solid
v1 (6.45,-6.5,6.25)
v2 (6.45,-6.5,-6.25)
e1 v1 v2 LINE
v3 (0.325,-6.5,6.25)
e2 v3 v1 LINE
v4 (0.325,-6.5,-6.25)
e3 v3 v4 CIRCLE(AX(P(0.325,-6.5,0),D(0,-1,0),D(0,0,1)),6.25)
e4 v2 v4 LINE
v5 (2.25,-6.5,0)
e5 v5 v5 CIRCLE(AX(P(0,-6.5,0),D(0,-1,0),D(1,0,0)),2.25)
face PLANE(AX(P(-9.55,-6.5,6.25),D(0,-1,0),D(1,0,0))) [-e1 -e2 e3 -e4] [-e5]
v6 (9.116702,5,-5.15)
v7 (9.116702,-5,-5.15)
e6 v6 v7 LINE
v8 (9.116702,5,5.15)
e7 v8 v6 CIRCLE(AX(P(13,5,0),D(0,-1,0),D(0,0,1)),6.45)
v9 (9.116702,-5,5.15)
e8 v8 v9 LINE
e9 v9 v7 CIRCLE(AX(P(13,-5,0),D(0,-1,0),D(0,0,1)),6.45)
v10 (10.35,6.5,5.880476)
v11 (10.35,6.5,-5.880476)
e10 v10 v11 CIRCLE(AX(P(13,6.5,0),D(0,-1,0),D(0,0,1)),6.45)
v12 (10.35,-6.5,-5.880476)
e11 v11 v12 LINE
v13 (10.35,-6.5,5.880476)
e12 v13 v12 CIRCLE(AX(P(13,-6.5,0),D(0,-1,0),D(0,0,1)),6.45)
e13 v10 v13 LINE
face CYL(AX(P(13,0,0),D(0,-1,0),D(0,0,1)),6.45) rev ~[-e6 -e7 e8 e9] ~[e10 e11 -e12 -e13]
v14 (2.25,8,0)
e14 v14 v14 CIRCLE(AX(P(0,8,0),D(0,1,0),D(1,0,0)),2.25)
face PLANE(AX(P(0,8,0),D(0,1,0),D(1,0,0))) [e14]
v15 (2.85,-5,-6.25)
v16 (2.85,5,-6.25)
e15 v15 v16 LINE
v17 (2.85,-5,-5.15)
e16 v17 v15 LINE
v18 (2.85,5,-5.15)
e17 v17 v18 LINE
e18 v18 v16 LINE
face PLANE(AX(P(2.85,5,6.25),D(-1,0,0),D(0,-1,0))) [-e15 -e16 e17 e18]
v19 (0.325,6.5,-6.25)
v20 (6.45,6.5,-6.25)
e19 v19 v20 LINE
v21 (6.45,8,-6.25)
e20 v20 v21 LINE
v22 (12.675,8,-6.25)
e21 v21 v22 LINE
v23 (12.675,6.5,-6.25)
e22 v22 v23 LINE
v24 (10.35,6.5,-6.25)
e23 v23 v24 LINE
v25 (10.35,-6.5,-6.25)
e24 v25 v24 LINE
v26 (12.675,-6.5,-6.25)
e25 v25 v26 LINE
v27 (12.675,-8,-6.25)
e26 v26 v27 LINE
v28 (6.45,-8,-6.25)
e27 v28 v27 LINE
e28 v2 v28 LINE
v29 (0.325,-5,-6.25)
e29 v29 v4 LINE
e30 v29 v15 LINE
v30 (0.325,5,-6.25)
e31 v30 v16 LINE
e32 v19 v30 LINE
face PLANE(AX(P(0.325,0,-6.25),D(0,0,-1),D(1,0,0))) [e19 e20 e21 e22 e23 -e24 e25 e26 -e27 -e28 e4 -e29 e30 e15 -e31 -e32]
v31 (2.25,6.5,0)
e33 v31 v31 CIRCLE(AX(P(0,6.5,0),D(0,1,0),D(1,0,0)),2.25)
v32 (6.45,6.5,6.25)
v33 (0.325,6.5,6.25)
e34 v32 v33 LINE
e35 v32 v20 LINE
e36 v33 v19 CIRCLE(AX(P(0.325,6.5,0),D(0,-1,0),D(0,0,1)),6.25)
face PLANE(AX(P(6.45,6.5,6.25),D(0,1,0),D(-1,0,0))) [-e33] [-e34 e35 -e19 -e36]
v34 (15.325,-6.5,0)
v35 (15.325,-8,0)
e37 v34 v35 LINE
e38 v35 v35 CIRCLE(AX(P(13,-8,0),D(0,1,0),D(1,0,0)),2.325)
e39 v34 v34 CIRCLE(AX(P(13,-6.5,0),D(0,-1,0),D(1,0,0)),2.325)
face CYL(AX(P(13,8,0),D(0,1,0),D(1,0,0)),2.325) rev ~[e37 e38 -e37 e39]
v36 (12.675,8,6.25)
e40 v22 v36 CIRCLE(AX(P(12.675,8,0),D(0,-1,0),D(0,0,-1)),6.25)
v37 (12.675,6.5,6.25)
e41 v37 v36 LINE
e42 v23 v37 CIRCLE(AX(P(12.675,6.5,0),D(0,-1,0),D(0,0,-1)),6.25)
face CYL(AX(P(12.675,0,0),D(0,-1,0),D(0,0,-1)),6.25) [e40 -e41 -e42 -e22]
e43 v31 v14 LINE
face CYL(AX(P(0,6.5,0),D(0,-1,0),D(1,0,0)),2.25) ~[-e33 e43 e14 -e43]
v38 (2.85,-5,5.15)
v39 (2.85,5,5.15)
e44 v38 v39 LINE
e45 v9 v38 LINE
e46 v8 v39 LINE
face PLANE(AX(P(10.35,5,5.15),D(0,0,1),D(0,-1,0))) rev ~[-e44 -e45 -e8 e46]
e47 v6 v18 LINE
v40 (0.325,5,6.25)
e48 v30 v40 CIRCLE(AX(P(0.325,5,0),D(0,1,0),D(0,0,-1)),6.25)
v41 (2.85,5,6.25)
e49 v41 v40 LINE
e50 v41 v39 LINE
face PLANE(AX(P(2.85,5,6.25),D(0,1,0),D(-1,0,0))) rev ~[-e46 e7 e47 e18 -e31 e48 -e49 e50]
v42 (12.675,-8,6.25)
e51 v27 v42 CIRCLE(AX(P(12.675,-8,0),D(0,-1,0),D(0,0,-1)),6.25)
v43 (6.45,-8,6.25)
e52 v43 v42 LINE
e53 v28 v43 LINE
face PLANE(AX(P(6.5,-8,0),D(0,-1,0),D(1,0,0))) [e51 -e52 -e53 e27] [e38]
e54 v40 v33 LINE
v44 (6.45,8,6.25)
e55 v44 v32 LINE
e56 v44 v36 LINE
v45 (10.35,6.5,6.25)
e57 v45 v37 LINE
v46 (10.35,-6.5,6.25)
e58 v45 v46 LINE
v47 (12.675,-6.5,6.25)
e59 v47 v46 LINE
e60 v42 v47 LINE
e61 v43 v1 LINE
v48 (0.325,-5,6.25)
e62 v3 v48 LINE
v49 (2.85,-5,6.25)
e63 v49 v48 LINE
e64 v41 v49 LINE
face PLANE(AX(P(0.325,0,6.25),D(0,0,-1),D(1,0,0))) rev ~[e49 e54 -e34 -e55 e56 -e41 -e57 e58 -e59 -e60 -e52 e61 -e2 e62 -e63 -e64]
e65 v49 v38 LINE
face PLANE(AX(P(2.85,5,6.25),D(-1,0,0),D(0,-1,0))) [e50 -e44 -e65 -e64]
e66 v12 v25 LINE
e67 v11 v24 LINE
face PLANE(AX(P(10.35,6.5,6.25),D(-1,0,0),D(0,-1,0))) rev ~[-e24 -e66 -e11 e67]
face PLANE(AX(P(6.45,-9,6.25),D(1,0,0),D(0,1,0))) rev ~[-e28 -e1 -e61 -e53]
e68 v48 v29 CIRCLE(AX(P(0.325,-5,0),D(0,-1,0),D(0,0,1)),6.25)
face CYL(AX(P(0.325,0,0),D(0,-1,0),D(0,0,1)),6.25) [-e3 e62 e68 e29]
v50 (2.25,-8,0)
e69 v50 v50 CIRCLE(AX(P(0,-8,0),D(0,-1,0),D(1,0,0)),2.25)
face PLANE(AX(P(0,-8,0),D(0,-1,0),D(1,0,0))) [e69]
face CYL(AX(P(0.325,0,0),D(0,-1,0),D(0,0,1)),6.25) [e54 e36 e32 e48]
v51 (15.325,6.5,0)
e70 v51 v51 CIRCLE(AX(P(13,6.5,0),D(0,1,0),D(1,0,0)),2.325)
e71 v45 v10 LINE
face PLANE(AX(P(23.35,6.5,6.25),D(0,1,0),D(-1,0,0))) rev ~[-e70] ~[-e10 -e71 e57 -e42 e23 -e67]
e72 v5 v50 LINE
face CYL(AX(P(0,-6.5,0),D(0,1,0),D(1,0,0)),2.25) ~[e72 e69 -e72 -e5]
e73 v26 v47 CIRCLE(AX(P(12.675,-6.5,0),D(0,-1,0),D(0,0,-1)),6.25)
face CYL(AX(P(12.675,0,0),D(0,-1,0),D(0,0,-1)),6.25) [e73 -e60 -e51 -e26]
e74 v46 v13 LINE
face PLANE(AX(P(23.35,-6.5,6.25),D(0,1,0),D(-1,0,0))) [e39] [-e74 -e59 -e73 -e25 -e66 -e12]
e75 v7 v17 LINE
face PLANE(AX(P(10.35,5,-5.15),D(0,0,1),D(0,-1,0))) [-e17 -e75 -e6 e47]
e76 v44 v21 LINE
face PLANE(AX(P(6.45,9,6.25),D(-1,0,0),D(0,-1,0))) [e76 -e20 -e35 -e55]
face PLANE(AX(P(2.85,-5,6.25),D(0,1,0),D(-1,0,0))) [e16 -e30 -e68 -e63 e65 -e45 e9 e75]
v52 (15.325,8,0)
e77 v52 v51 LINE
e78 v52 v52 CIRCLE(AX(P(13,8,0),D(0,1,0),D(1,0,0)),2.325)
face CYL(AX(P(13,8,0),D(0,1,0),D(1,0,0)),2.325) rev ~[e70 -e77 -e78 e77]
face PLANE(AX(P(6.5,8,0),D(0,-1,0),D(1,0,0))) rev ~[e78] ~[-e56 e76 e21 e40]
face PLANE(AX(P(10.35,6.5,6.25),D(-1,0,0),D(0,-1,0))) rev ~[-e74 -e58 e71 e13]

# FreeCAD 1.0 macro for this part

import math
import FreeCAD as App
import Part
import Sketcher

V = App.Vector

doc = App.newDocument("Part")
params = doc.addObject("Spreadsheet::Sheet", "Params")
for row, (alias, value) in enumerate([
    ("sketch1_radius", "6.45 mm"),
    ("pad1_length", "13 mm"),
    ("sketch2_radius", "6.25 mm"),
    ("sketch2_width", "12.35 mm"),
    ("pad2_length", "16 mm"),
    ("sketch3_width", "16 mm"),
    ("sketch3_height", "2.5 mm"),
    ("sketch4_width", "10 mm"),
    ("sketch5_width", "13 mm"),
    ("sketch6_diameter", "4.5 mm"),
    ("pad3_length", "1.5 mm"),
    ("sketch7_diameter", "4.5 mm"),
    ("pad4_length", "1.5 mm"),
    ("sketch8_diameter", "4.65 mm"),
    ("sketch9_width", "10 mm"),
    ("sketch9_height", "10.3 mm"),
], start=1):
    params.set(f"A{row}", alias)
    params.set(f"B{row}", "=" + value)
    params.setAlias(f"B{row}", alias)

body = doc.addObject("PartDesign::Body", "Body")

# Sketch on XZ plane
sketch1 = doc.addObject("Sketcher::SketchObject", "Sketch")
body.addObject(sketch1)
sketch1.AttachmentSupport = (doc.XZ_Plane, [""])
sketch1.MapMode = "FlatFace"
sketch1.addGeometry(Part.ArcOfCircle(Part.Circle(V(13, 0, 0), V(0, 0, 1), 6.45), math.radians(90), math.radians(270)), False)
sketch1.addGeometry(Part.LineSegment(V(13, -6.45, 0), V(13, 6.45, 0)), False)
sketch1.addConstraint(Sketcher.Constraint("Coincident", 0, 1, 1, 2))
sketch1.addConstraint(Sketcher.Constraint("Coincident", 1, 1, 0, 2))
sketch1.addConstraint(Sketcher.Constraint("Vertical", 1))
sketch1.addConstraint(Sketcher.Constraint("PointOnObject", 0, 3, -1))
sketch1.addConstraint(Sketcher.Constraint("Radius", 0, 6.45))
sketch1.addConstraint(Sketcher.Constraint("DistanceX", -1, 1, 0, 3, 13.0))
sketch1.addConstraint(Sketcher.Constraint("DistanceX", -1, 1, 0, 1, 13.0))
sketch1.setExpression("Constraints[4]", "Params.sketch1_radius")
pad1 = doc.addObject("PartDesign::Pad", "Pad")
body.addObject(pad1)
pad1.Profile = sketch1
pad1.setExpression("Length", "Params.pad1_length")
pad1.Midplane = True
body2 = doc.addObject("PartDesign::Body", "Body001")

# Sketch on XZ plane
sketch2 = doc.addObject("Sketcher::SketchObject", "Sketch001")
body2.addObject(sketch2)
sketch2.AttachmentSupport = (doc.getObject("XZ_Plane001"), [""])
sketch2.MapMode = "FlatFace"
sketch2.addGeometry(Part.ArcOfCircle(Part.Circle(V(0.325, 0, 0), V(0, 0, 1), 6.25), math.radians(90), math.radians(270)), False)
sketch2.addGeometry(Part.LineSegment(V(0.325, -6.25, 0), V(12.675, -6.25, 0)), False)
sketch2.addGeometry(Part.ArcOfCircle(Part.Circle(V(12.675, 0, 0), V(0, 0, 1), 6.25), math.radians(-90), math.radians(90)), False)
sketch2.addGeometry(Part.LineSegment(V(12.675, 6.25, 0), V(0.325, 6.25, 0)), False)
sketch2.addConstraint(Sketcher.Constraint("Tangent", 0, 2, 1, 1))
sketch2.addConstraint(Sketcher.Constraint("Tangent", 1, 2, 2, 1))
sketch2.addConstraint(Sketcher.Constraint("Tangent", 2, 2, 3, 1))
sketch2.addConstraint(Sketcher.Constraint("Tangent", 3, 2, 0, 1))
sketch2.addConstraint(Sketcher.Constraint("Horizontal", 1))
sketch2.addConstraint(Sketcher.Constraint("Horizontal", 3))
sketch2.addConstraint(Sketcher.Constraint("PointOnObject", 0, 3, -1))
sketch2.addConstraint(Sketcher.Constraint("Radius", 0, 6.25))
sketch2.addConstraint(Sketcher.Constraint("DistanceX", 1, 1, 1, 2, 12.35))
sketch2.addConstraint(Sketcher.Constraint("DistanceX", -1, 1, 0, 3, 0.325))
sketch2.setExpression("Constraints[7]", "Params.sketch2_radius")
sketch2.setExpression("Constraints[8]", "Params.sketch2_width")
pad2 = doc.addObject("PartDesign::Pad", "Pad001")
body2.addObject(pad2)
pad2.Profile = sketch2
pad2.setExpression("Length", "Params.pad2_length")
pad2.Midplane = True

# Sketch on XY plane
sketch3 = doc.addObject("Sketcher::SketchObject", "Sketch002")
body2.addObject(sketch3)
sketch3.AttachmentSupport = (doc.getObject("XY_Plane001"), [""])
sketch3.MapMode = "FlatFace"
sketch3.AttachmentOffset = App.Placement(V(0, 0, 6.25), App.Rotation())
sketch3.addGeometry(Part.LineSegment(V(-9.55, -6.5, 0), V(-9.55, -9, 0)), False)
sketch3.addGeometry(Part.LineSegment(V(-9.55, -9, 0), V(6.45, -9, 0)), False)
sketch3.addGeometry(Part.LineSegment(V(6.45, -9, 0), V(6.45, -6.5, 0)), False)
sketch3.addGeometry(Part.LineSegment(V(6.45, -6.5, 0), V(-9.55, -6.5, 0)), False)
sketch3.addGeometry(Part.LineSegment(V(6.45, 6.5, 0), V(6.45, 9, 0)), False)
sketch3.addGeometry(Part.LineSegment(V(6.45, 9, 0), V(-9.55, 9, 0)), False)
sketch3.addGeometry(Part.LineSegment(V(-9.55, 9, 0), V(-9.55, 6.5, 0)), False)
sketch3.addGeometry(Part.LineSegment(V(-9.55, 6.5, 0), V(6.45, 6.5, 0)), False)
sketch3.addConstraint(Sketcher.Constraint("Coincident", 0, 2, 1, 1))
sketch3.addConstraint(Sketcher.Constraint("Coincident", 1, 2, 2, 1))
sketch3.addConstraint(Sketcher.Constraint("Coincident", 2, 2, 3, 1))
sketch3.addConstraint(Sketcher.Constraint("Coincident", 3, 2, 0, 1))
sketch3.addConstraint(Sketcher.Constraint("Coincident", 4, 2, 5, 1))
sketch3.addConstraint(Sketcher.Constraint("Coincident", 5, 2, 6, 1))
sketch3.addConstraint(Sketcher.Constraint("Coincident", 6, 2, 7, 1))
sketch3.addConstraint(Sketcher.Constraint("Coincident", 7, 2, 4, 1))
sketch3.addConstraint(Sketcher.Constraint("Vertical", 0))
sketch3.addConstraint(Sketcher.Constraint("Horizontal", 1))
sketch3.addConstraint(Sketcher.Constraint("Vertical", 2))
sketch3.addConstraint(Sketcher.Constraint("Horizontal", 3))
sketch3.addConstraint(Sketcher.Constraint("Vertical", 4))
sketch3.addConstraint(Sketcher.Constraint("Horizontal", 5))
sketch3.addConstraint(Sketcher.Constraint("Vertical", 6))
sketch3.addConstraint(Sketcher.Constraint("Horizontal", 7))
sketch3.addConstraint(Sketcher.Constraint("Symmetric", 1, 2, 4, 2, -1))
sketch3.addConstraint(Sketcher.Constraint("Symmetric", 3, 2, 6, 2, -1))
sketch3.addConstraint(Sketcher.Constraint("DistanceX", 1, 1, 1, 2, 16.0))
sketch3.addConstraint(Sketcher.Constraint("DistanceY", 0, 2, 0, 1, 2.5))
sketch3.addConstraint(Sketcher.Constraint("DistanceY", 0, 2, -1, 1, 9.0))
sketch3.addConstraint(Sketcher.Constraint("DistanceX", 0, 2, -1, 1, 9.55))
sketch3.setExpression("Constraints[18]", "Params.sketch3_width")
sketch3.setExpression("Constraints[19]", "Params.sketch3_height")
pocket1 = doc.addObject("PartDesign::Pocket", "Pocket")
body2.addObject(pocket1)
pocket1.Profile = sketch3
pocket1.Type = "ThroughAll"

# Sketch on XY plane
sketch4 = doc.addObject("Sketcher::SketchObject", "Sketch003")
body2.addObject(sketch4)
sketch4.AttachmentSupport = (doc.getObject("XY_Plane001"), [""])
sketch4.MapMode = "FlatFace"
sketch4.AttachmentOffset = App.Placement(V(0, 0, 6.25), App.Rotation())
sketch4.addGeometry(Part.LineSegment(V(2.85, -5, 0), V(2.85, 5, 0)), False)
sketch4.addGeometry(Part.LineSegment(V(2.85, 5, 0), V(-7.15, 5, 0)), False)
sketch4.addGeometry(Part.LineSegment(V(-7.15, 5, 0), V(-7.15, -5, 0)), False)
sketch4.addGeometry(Part.LineSegment(V(-7.15, -5, 0), V(2.85, -5, 0)), False)
sketch4.addConstraint(Sketcher.Constraint("Coincident", 0, 2, 1, 1))
sketch4.addConstraint(Sketcher.Constraint("Coincident", 1, 2, 2, 1))
sketch4.addConstraint(Sketcher.Constraint("Coincident", 2, 2, 3, 1))
sketch4.addConstraint(Sketcher.Constraint("Coincident", 3, 2, 0, 1))
sketch4.addConstraint(Sketcher.Constraint("Vertical", 0))
sketch4.addConstraint(Sketcher.Constraint("Horizontal", 1))
sketch4.addConstraint(Sketcher.Constraint("Vertical", 2))
sketch4.addConstraint(Sketcher.Constraint("Horizontal", 3))
sketch4.addConstraint(Sketcher.Constraint("Equal", 3, 0))
sketch4.addConstraint(Sketcher.Constraint("DistanceX", 1, 2, 1, 1, 10.0))
sketch4.addConstraint(Sketcher.Constraint("DistanceY", -1, 1, 0, 2, 5.0))
sketch4.addConstraint(Sketcher.Constraint("DistanceX", -1, 1, 0, 2, 2.85))
sketch4.setExpression("Constraints[9]", "Params.sketch4_width")
pocket2 = doc.addObject("PartDesign::Pocket", "Pocket001")
body2.addObject(pocket2)
pocket2.Profile = sketch4
pocket2.Type = "ThroughAll"

# Sketch on XY plane
sketch5 = doc.addObject("Sketcher::SketchObject", "Sketch004")
body2.addObject(sketch5)
sketch5.AttachmentSupport = (doc.getObject("XY_Plane001"), [""])
sketch5.MapMode = "FlatFace"
sketch5.AttachmentOffset = App.Placement(V(0, 0, 6.25), App.Rotation())
sketch5.addGeometry(Part.LineSegment(V(23.35, -6.5, 0), V(23.35, 6.5, 0)), False)
sketch5.addGeometry(Part.LineSegment(V(23.35, 6.5, 0), V(10.35, 6.5, 0)), False)
sketch5.addGeometry(Part.LineSegment(V(10.35, 6.5, 0), V(10.35, -6.5, 0)), False)
sketch5.addGeometry(Part.LineSegment(V(10.35, -6.5, 0), V(23.35, -6.5, 0)), False)
sketch5.addConstraint(Sketcher.Constraint("Coincident", 0, 2, 1, 1))
sketch5.addConstraint(Sketcher.Constraint("Coincident", 1, 2, 2, 1))
sketch5.addConstraint(Sketcher.Constraint("Coincident", 2, 2, 3, 1))
sketch5.addConstraint(Sketcher.Constraint("Coincident", 3, 2, 0, 1))
sketch5.addConstraint(Sketcher.Constraint("Vertical", 0))
sketch5.addConstraint(Sketcher.Constraint("Horizontal", 1))
sketch5.addConstraint(Sketcher.Constraint("Vertical", 2))
sketch5.addConstraint(Sketcher.Constraint("Horizontal", 3))
sketch5.addConstraint(Sketcher.Constraint("Equal", 3, 0))
sketch5.addConstraint(Sketcher.Constraint("DistanceX", 1, 2, 1, 1, 13.0))
sketch5.addConstraint(Sketcher.Constraint("DistanceY", -1, 1, 0, 2, 6.5))
sketch5.addConstraint(Sketcher.Constraint("DistanceX", -1, 1, 0, 2, 23.35))
sketch5.setExpression("Constraints[9]", "Params.sketch5_width")
pocket3 = doc.addObject("PartDesign::Pocket", "Pocket002")
body2.addObject(pocket3)
pocket3.Profile = sketch5
pocket3.Type = "ThroughAll"

# Sketch on XZ plane
sketch6 = doc.addObject("Sketcher::SketchObject", "Sketch005")
body2.addObject(sketch6)
sketch6.AttachmentSupport = (doc.getObject("XZ_Plane001"), [""])
sketch6.MapMode = "FlatFace"
sketch6.AttachmentOffset = App.Placement(V(0, 0, 6.5), App.Rotation())
sketch6.addGeometry(Part.Circle(V(0, 0, 0), V(0, 0, 1), 2.25), False)
sketch6.addConstraint(Sketcher.Constraint("Coincident", 0, 3, -1, 1))
sketch6.addConstraint(Sketcher.Constraint("Diameter", 0, 4.5))
sketch6.setExpression("Constraints[1]", "Params.sketch6_diameter")
pad3 = doc.addObject("PartDesign::Pad", "Pad002")
body2.addObject(pad3)
pad3.Profile = sketch6
pad3.setExpression("Length", "Params.pad3_length")

# Sketch on XZ plane
sketch7 = doc.addObject("Sketcher::SketchObject", "Sketch006")
body2.addObject(sketch7)
sketch7.AttachmentSupport = (doc.getObject("XZ_Plane001"), [""])
sketch7.MapMode = "FlatFace"
sketch7.AttachmentOffset = App.Placement(V(0, 0, -6.5), App.Rotation())
sketch7.addGeometry(Part.Circle(V(0, 0, 0), V(0, 0, 1), 2.25), False)
sketch7.addConstraint(Sketcher.Constraint("Coincident", 0, 3, -1, 1))
sketch7.addConstraint(Sketcher.Constraint("Diameter", 0, 4.5))
sketch7.setExpression("Constraints[1]", "Params.sketch7_diameter")
pad4 = doc.addObject("PartDesign::Pad", "Pad003")
body2.addObject(pad4)
pad4.Profile = sketch7
pad4.setExpression("Length", "Params.pad4_length")
pad4.Reversed = True

# Sketch on XZ plane
sketch8 = doc.addObject("Sketcher::SketchObject", "Sketch007")
body2.addObject(sketch8)
sketch8.AttachmentSupport = (doc.getObject("XZ_Plane001"), [""])
sketch8.MapMode = "FlatFace"
sketch8.AttachmentOffset = App.Placement(V(0, 0, -8), App.Rotation())
sketch8.addGeometry(Part.Circle(V(13, 0, 0), V(0, 0, 1), 2.325), False)
sketch8.addConstraint(Sketcher.Constraint("PointOnObject", 0, 3, -1))
sketch8.addConstraint(Sketcher.Constraint("Diameter", 0, 4.65))
sketch8.addConstraint(Sketcher.Constraint("DistanceX", -1, 1, 0, 3, 13.0))
sketch8.setExpression("Constraints[1]", "Params.sketch8_diameter")
pocket4 = doc.addObject("PartDesign::Pocket", "Pocket003")
body2.addObject(pocket4)
pocket4.Profile = sketch8
pocket4.Type = "ThroughAll"
pocket4.Reversed = True

# Sketch on YZ plane
sketch9 = doc.addObject("Sketcher::SketchObject", "Sketch008")
body2.addObject(sketch9)
sketch9.AttachmentSupport = (doc.getObject("YZ_Plane001"), [""])
sketch9.MapMode = "FlatFace"
sketch9.AttachmentOffset = App.Placement(V(0, 0, 10.35), App.Rotation())
sketch9.addGeometry(Part.LineSegment(V(-5, -5.15, 0), V(5, -5.15, 0)), False)
sketch9.addGeometry(Part.LineSegment(V(5, -5.15, 0), V(5, 5.15, 0)), False)
sketch9.addGeometry(Part.LineSegment(V(5, 5.15, 0), V(-5, 5.15, 0)), False)
sketch9.addGeometry(Part.LineSegment(V(-5, 5.15, 0), V(-5, -5.15, 0)), False)
sketch9.addConstraint(Sketcher.Constraint("Coincident", 0, 2, 1, 1))
sketch9.addConstraint(Sketcher.Constraint("Coincident", 1, 2, 2, 1))
sketch9.addConstraint(Sketcher.Constraint("Coincident", 2, 2, 3, 1))
sketch9.addConstraint(Sketcher.Constraint("Coincident", 3, 2, 0, 1))
sketch9.addConstraint(Sketcher.Constraint("Horizontal", 0))
sketch9.addConstraint(Sketcher.Constraint("Vertical", 1))
sketch9.addConstraint(Sketcher.Constraint("Horizontal", 2))
sketch9.addConstraint(Sketcher.Constraint("Vertical", 3))
sketch9.addConstraint(Sketcher.Constraint("Symmetric", 0, 2, 2, 2, -1, 1))
sketch9.addConstraint(Sketcher.Constraint("DistanceX", 0, 1, 0, 2, 10.0))
sketch9.addConstraint(Sketcher.Constraint("DistanceY", 1, 1, 1, 2, 10.3))
sketch9.setExpression("Constraints[9]", "Params.sketch9_width")
sketch9.setExpression("Constraints[10]", "Params.sketch9_height")
pocket5 = doc.addObject("PartDesign::Pocket", "Pocket004")
body2.addObject(pocket5)
pocket5.Profile = sketch9
pocket5.Type = "ThroughAll"
doc.recompute()

boolean = doc.addObject("PartDesign::Boolean", "Boolean")
body2.addObject(boolean)
boolean.Type = "Cut"
boolean.addObjects([body])

doc.recompute()
